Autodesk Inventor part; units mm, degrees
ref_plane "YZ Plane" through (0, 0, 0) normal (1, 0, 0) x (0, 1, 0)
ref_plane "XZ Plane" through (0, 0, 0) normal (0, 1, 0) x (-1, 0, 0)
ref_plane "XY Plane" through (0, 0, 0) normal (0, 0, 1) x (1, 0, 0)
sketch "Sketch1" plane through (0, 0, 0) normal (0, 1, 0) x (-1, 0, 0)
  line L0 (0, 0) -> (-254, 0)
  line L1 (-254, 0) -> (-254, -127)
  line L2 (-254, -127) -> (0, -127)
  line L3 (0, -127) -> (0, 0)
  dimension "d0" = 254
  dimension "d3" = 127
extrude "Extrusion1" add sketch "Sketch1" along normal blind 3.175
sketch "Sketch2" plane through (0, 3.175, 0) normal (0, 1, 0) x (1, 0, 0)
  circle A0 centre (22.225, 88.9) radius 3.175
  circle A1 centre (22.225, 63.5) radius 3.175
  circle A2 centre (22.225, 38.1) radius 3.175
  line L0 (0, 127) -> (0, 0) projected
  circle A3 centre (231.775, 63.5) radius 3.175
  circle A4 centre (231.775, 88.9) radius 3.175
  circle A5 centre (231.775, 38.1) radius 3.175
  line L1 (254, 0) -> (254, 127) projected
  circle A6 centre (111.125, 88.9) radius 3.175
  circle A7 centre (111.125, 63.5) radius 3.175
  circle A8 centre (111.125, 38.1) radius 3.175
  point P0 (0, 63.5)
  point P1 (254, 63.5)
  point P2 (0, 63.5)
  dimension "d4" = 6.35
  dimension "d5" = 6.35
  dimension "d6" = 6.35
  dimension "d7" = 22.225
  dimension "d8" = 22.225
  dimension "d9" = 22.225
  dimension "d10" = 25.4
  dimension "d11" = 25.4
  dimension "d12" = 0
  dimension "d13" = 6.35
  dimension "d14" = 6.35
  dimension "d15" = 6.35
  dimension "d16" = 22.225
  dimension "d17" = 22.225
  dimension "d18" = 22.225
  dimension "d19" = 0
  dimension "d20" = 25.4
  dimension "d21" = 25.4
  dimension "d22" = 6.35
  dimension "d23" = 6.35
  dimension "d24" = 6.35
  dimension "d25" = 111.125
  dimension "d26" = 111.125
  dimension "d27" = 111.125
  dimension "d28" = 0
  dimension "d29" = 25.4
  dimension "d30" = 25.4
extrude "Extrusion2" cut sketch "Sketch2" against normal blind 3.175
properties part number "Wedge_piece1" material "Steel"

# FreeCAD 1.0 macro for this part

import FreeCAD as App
import Part
import Sketcher

V = App.Vector
Q = App.Units.Quantity


def add_polygon(sketch, points):
    """Adds a closed chain of lines whose ends are joined by coincident constraints."""
    first, n = sketch.GeometryCount, len(points)
    for a, b in zip(points, points[1:] + points[:1]):
        sketch.addGeometry(Part.LineSegment(App.Vector(*a, 0), App.Vector(*b, 0)), False)
    for i in range(n):
        sketch.addConstraint(Sketcher.Constraint("Coincident", first + i, 2, first + (i + 1) % n, 1))

doc = App.newDocument("Part")
body = doc.addObject("PartDesign::Body", "Body")

sketch1 = doc.addObject("Sketcher::SketchObject", "Sketch")
body.addObject(sketch1)
sketch1.AttachmentSupport = (doc.XZ_Plane, [""])
sketch1.MapMode = "FlatFace"
add_polygon(sketch1, [(0, -127), (0, 0), (254, 0), (254, -127)])
sketch1.addConstraint([
    Sketcher.Constraint("Vertical", 0),
    Sketcher.Constraint("Horizontal", 1),
    Sketcher.Constraint("Vertical", 2),
    Sketcher.Constraint("Horizontal", 3),
    Sketcher.Constraint("Coincident", 0, 2, -1, 1),
    Sketcher.Constraint("DistanceX", 1, 1, 1, 2, Q("10 in")),
    Sketcher.Constraint("DistanceY", 0, 1, 0, 2, Q("5 in")),
])
pad1 = doc.addObject("PartDesign::Pad", "Pad")
body.addObject(pad1)
pad1.Profile = sketch1
pad1.Length = Q("0.125 in")
pad1.Reversed = True

sketch2 = doc.addObject("Sketcher::SketchObject", "Sketch001")
body.addObject(sketch2)
sketch2.AttachmentSupport = (doc.XZ_Plane, [""])
sketch2.MapMode = "FlatFace"
sketch2.AttachmentOffset = App.Placement(V(0, 0, -0.125 * 25.4), App.Rotation())
sketch2.addGeometry([
    Part.Circle(V(22.2, -88.9, 0), V(0, 0, 1), 3.2),
    Part.Circle(V(22.2, -63.5, 0), V(0, 0, 1), 3.2),
    Part.Circle(V(22.2, -38.1, 0), V(0, 0, 1), 3.2),
    Part.Circle(V(231.8, -63.5, 0), V(0, 0, 1), 3.2),
    Part.Circle(V(231.8, -88.9, 0), V(0, 0, 1), 3.2),
    Part.Circle(V(231.8, -38.1, 0), V(0, 0, 1), 3.2),
    Part.Circle(V(111.1, -88.9, 0), V(0, 0, 1), 3.2),
    Part.Circle(V(111.1, -63.5, 0), V(0, 0, 1), 3.2),
    Part.Circle(V(111.1, -38.1, 0), V(0, 0, 1), 3.2),
], False)
sketch2.addConstraint([
    Sketcher.Constraint("Equal", 0, 1),
    Sketcher.Constraint("Equal", 1, 2),
    Sketcher.Constraint("Equal", 2, 3),
    Sketcher.Constraint("Equal", 3, 4),
    Sketcher.Constraint("Equal", 4, 5),
    Sketcher.Constraint("Equal", 5, 6),
    Sketcher.Constraint("Equal", 6, 7),
    Sketcher.Constraint("Equal", 7, 8),
    Sketcher.Constraint("Horizontal", 1, 3, 3, 3),
    Sketcher.Constraint("Horizontal", 0, 3, 4, 3),
    Sketcher.Constraint("Horizontal", 2, 3, 5, 3),
    Sketcher.Constraint("Horizontal", 4, 3, 6, 3),
    Sketcher.Constraint("Horizontal", 3, 3, 7, 3),
    Sketcher.Constraint("Horizontal", 5, 3, 8, 3),
    Sketcher.Constraint("Vertical", 0, 3, 1, 3),
    Sketcher.Constraint("Vertical", 1, 3, 2, 3),
    Sketcher.Constraint("Vertical", 3, 3, 4, 3),
    Sketcher.Constraint("Vertical", 4, 3, 5, 3),
    Sketcher.Constraint("Vertical", 6, 3, 7, 3),
    Sketcher.Constraint("Vertical", 7, 3, 8, 3),
    Sketcher.Constraint("Diameter", 0, Q("0.25 in")),
    Sketcher.Constraint("DistanceY", 0, 3, 1, 3, Q("1 in")),
    Sketcher.Constraint("DistanceY", 1, 3, 2, 3, Q("1 in")),
    Sketcher.Constraint("DistanceX", -1, 1, 0, 3, Q("0.875 in")),
    Sketcher.Constraint("DistanceX", -1, 1, 6, 3, Q("4.375 in")),
    Sketcher.Constraint("DistanceY", 0, 3, -1, 1, Q("3.5 in")),
    Sketcher.Constraint("DistanceX", 1, 3, 3, 3, Q("8.25 in")),
])
pocket1 = doc.addObject("PartDesign::Pocket", "Pocket")
body.addObject(pocket1)
pocket1.Profile = sketch2
pocket1.Length = Q("0.125 in")
pocket1.Reversed = True

doc.recompute()
